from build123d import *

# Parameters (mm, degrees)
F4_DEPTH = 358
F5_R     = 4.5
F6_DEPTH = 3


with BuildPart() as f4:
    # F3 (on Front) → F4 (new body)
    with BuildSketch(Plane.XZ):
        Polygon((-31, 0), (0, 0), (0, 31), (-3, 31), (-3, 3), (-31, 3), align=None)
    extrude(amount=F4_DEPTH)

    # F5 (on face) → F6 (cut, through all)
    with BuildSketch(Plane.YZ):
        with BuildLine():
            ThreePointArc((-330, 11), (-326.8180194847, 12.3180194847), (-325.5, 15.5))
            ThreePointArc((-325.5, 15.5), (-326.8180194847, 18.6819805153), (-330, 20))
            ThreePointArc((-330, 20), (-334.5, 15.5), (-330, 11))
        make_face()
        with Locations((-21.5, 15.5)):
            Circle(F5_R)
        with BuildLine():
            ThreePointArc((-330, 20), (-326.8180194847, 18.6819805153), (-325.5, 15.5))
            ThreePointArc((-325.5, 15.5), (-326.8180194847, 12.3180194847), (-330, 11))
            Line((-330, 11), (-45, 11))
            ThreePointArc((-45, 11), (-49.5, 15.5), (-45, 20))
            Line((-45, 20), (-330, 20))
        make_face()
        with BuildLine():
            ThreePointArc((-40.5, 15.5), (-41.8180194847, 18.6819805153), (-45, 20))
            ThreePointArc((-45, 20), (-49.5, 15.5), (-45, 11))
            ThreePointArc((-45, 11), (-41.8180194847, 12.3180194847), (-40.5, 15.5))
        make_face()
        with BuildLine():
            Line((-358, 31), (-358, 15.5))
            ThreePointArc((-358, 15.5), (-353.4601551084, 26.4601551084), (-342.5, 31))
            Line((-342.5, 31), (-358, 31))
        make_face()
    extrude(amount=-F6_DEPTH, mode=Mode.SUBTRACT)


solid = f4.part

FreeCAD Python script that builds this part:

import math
import FreeCAD as App
import Part
import Sketcher

doc = App.newDocument("Part")
body = doc.addObject("PartDesign::Body", "Body")

# Sketch on XZ plane
sketch1 = body.newObject("Sketcher::SketchObject", "Sketch")
sketch1.AttachmentSupport = (doc.getObject("XZ_Plane"), [""])
sketch1.MapMode = "FlatFace"
sketch1.addGeometry([
    Part.LineSegment(App.Vector(-31, 0, 0), App.Vector(0, 0, 0)),  # 0
    Part.LineSegment(App.Vector(0, 0, 0), App.Vector(0, 31, 0)),  # 1
    Part.LineSegment(App.Vector(0, 31, 0), App.Vector(-3, 31, 0)),  # 2
    Part.LineSegment(App.Vector(-3, 31, 0), App.Vector(-3, 3, 0)),  # 3
    Part.LineSegment(App.Vector(-3, 3, 0), App.Vector(-31, 3, 0)),  # 4
    Part.LineSegment(App.Vector(-31, 3, 0), App.Vector(-31, 0, 0)),  # 5
], False)
sketch1.addConstraint([
    Sketcher.Constraint("Coincident", 0, 2, 1, 1),
    Sketcher.Constraint("Coincident", 1, 2, 2, 1),
    Sketcher.Constraint("Coincident", 2, 2, 3, 1),
    Sketcher.Constraint("Coincident", 3, 2, 4, 1),
    Sketcher.Constraint("Coincident", 4, 2, 5, 1),
    Sketcher.Constraint("Coincident", 5, 2, 0, 1),
    Sketcher.Constraint("Horizontal", 0),
    Sketcher.Constraint("Vertical", 1),
    Sketcher.Constraint("Horizontal", 2),
    Sketcher.Constraint("Vertical", 3),
    Sketcher.Constraint("Horizontal", 4),
    Sketcher.Constraint("Vertical", 5),
    Sketcher.Constraint("Coincident", 0, 2, -1, 1),
    Sketcher.Constraint("Equal", 0, 1),
    Sketcher.Constraint("Equal", 4, 3),
    Sketcher.Constraint("DistanceX", 0, 1, 0, 2, 31.0),
    Sketcher.Constraint("DistanceX", 2, 2, 2, 1, 3.0),
])
pad1 = body.newObject("PartDesign::Pad", "Pad")
pad1.Profile = sketch1
pad1.Length = 358

# Sketch on YZ plane
sketch2 = body.newObject("Sketcher::SketchObject", "Sketch001")
sketch2.AttachmentSupport = (doc.getObject("YZ_Plane"), [""])
sketch2.MapMode = "FlatFace"
sketch2.addGeometry([
    Part.ArcOfCircle(Part.Circle(App.Vector(-330, 15.5, 0), App.Vector(0, 0, 1), 4.5), math.radians(90), math.radians(270)),  # 0
    Part.LineSegment(App.Vector(-330, 11, 0), App.Vector(-45, 11, 0)),  # 1
    Part.ArcOfCircle(Part.Circle(App.Vector(-45, 15.5, 0), App.Vector(0, 0, 1), 4.5), math.radians(-90), math.radians(0)),  # 2
    Part.ArcOfCircle(Part.Circle(App.Vector(-45, 15.5, 0), App.Vector(0, 0, 1), 4.5), math.radians(0), math.radians(90)),  # 3
    Part.LineSegment(App.Vector(-45, 20, 0), App.Vector(-330, 20, 0)),  # 4
    Part.Circle(App.Vector(-21.5, 15.5, 0), App.Vector(0, 0, 1), 4.5),  # 5
    Part.LineSegment(App.Vector(-358, 31, 0), App.Vector(-358, 15.5, 0)),  # 6
    Part.ArcOfCircle(Part.Circle(App.Vector(-342.5, 15.5, 0), App.Vector(0, 0, 1), 15.5), math.radians(90), math.radians(180)),  # 7
    Part.LineSegment(App.Vector(-342.5, 31, 0), App.Vector(-358, 31, 0)),  # 8
], False)
sketch2.addConstraint([
    Sketcher.Constraint("Tangent", 0, 2, 1, 1),
    Sketcher.Constraint("Tangent", 1, 2, 2, 1),
    Sketcher.Constraint("Tangent", 2, 2, 3, 1),
    Sketcher.Constraint("Tangent", 3, 2, 4, 1),
    Sketcher.Constraint("Tangent", 4, 2, 0, 1),
    Sketcher.Constraint("Tangent", 6, 2, 7, 2),
    Sketcher.Constraint("Tangent", 7, 1, 8, 1),
    Sketcher.Constraint("Coincident", 8, 2, 6, 1),
    Sketcher.Constraint("Horizontal", 1),
    Sketcher.Constraint("Horizontal", 4),
    Sketcher.Constraint("Vertical", 6),
    Sketcher.Constraint("Horizontal", 8),
    Sketcher.Constraint("Equal", 0, 2),
    Sketcher.Constraint("Equal", 3, 5),
    Sketcher.Constraint("Horizontal", 3, 3, 5, 3),
    Sketcher.Constraint("Horizontal", 5, 3, 7, 3),
    Sketcher.Constraint("Horizontal", 7, 3, 2, 2),
    Sketcher.Constraint("Diameter", 5, 9.0),
    Sketcher.Constraint("Radius", 7, 15.5),
    Sketcher.Constraint("DistanceX", 1, 1, 1, 2, 285.0),
    Sketcher.Constraint("DistanceX", 0, 3, -1, 1, 330.0),
    Sketcher.Constraint("DistanceY", -1, 1, 0, 2, 11.0),
    Sketcher.Constraint("DistanceX", 6, 2, -1, 1, 358.0),
    Sketcher.Constraint("DistanceX", 7, 3, 5, 3, 321.0),
])
pocket1 = body.newObject("PartDesign::Pocket", "Pocket")
pocket1.Profile = sketch2
pocket1.Type = "ThroughAll"

doc.recompute()
